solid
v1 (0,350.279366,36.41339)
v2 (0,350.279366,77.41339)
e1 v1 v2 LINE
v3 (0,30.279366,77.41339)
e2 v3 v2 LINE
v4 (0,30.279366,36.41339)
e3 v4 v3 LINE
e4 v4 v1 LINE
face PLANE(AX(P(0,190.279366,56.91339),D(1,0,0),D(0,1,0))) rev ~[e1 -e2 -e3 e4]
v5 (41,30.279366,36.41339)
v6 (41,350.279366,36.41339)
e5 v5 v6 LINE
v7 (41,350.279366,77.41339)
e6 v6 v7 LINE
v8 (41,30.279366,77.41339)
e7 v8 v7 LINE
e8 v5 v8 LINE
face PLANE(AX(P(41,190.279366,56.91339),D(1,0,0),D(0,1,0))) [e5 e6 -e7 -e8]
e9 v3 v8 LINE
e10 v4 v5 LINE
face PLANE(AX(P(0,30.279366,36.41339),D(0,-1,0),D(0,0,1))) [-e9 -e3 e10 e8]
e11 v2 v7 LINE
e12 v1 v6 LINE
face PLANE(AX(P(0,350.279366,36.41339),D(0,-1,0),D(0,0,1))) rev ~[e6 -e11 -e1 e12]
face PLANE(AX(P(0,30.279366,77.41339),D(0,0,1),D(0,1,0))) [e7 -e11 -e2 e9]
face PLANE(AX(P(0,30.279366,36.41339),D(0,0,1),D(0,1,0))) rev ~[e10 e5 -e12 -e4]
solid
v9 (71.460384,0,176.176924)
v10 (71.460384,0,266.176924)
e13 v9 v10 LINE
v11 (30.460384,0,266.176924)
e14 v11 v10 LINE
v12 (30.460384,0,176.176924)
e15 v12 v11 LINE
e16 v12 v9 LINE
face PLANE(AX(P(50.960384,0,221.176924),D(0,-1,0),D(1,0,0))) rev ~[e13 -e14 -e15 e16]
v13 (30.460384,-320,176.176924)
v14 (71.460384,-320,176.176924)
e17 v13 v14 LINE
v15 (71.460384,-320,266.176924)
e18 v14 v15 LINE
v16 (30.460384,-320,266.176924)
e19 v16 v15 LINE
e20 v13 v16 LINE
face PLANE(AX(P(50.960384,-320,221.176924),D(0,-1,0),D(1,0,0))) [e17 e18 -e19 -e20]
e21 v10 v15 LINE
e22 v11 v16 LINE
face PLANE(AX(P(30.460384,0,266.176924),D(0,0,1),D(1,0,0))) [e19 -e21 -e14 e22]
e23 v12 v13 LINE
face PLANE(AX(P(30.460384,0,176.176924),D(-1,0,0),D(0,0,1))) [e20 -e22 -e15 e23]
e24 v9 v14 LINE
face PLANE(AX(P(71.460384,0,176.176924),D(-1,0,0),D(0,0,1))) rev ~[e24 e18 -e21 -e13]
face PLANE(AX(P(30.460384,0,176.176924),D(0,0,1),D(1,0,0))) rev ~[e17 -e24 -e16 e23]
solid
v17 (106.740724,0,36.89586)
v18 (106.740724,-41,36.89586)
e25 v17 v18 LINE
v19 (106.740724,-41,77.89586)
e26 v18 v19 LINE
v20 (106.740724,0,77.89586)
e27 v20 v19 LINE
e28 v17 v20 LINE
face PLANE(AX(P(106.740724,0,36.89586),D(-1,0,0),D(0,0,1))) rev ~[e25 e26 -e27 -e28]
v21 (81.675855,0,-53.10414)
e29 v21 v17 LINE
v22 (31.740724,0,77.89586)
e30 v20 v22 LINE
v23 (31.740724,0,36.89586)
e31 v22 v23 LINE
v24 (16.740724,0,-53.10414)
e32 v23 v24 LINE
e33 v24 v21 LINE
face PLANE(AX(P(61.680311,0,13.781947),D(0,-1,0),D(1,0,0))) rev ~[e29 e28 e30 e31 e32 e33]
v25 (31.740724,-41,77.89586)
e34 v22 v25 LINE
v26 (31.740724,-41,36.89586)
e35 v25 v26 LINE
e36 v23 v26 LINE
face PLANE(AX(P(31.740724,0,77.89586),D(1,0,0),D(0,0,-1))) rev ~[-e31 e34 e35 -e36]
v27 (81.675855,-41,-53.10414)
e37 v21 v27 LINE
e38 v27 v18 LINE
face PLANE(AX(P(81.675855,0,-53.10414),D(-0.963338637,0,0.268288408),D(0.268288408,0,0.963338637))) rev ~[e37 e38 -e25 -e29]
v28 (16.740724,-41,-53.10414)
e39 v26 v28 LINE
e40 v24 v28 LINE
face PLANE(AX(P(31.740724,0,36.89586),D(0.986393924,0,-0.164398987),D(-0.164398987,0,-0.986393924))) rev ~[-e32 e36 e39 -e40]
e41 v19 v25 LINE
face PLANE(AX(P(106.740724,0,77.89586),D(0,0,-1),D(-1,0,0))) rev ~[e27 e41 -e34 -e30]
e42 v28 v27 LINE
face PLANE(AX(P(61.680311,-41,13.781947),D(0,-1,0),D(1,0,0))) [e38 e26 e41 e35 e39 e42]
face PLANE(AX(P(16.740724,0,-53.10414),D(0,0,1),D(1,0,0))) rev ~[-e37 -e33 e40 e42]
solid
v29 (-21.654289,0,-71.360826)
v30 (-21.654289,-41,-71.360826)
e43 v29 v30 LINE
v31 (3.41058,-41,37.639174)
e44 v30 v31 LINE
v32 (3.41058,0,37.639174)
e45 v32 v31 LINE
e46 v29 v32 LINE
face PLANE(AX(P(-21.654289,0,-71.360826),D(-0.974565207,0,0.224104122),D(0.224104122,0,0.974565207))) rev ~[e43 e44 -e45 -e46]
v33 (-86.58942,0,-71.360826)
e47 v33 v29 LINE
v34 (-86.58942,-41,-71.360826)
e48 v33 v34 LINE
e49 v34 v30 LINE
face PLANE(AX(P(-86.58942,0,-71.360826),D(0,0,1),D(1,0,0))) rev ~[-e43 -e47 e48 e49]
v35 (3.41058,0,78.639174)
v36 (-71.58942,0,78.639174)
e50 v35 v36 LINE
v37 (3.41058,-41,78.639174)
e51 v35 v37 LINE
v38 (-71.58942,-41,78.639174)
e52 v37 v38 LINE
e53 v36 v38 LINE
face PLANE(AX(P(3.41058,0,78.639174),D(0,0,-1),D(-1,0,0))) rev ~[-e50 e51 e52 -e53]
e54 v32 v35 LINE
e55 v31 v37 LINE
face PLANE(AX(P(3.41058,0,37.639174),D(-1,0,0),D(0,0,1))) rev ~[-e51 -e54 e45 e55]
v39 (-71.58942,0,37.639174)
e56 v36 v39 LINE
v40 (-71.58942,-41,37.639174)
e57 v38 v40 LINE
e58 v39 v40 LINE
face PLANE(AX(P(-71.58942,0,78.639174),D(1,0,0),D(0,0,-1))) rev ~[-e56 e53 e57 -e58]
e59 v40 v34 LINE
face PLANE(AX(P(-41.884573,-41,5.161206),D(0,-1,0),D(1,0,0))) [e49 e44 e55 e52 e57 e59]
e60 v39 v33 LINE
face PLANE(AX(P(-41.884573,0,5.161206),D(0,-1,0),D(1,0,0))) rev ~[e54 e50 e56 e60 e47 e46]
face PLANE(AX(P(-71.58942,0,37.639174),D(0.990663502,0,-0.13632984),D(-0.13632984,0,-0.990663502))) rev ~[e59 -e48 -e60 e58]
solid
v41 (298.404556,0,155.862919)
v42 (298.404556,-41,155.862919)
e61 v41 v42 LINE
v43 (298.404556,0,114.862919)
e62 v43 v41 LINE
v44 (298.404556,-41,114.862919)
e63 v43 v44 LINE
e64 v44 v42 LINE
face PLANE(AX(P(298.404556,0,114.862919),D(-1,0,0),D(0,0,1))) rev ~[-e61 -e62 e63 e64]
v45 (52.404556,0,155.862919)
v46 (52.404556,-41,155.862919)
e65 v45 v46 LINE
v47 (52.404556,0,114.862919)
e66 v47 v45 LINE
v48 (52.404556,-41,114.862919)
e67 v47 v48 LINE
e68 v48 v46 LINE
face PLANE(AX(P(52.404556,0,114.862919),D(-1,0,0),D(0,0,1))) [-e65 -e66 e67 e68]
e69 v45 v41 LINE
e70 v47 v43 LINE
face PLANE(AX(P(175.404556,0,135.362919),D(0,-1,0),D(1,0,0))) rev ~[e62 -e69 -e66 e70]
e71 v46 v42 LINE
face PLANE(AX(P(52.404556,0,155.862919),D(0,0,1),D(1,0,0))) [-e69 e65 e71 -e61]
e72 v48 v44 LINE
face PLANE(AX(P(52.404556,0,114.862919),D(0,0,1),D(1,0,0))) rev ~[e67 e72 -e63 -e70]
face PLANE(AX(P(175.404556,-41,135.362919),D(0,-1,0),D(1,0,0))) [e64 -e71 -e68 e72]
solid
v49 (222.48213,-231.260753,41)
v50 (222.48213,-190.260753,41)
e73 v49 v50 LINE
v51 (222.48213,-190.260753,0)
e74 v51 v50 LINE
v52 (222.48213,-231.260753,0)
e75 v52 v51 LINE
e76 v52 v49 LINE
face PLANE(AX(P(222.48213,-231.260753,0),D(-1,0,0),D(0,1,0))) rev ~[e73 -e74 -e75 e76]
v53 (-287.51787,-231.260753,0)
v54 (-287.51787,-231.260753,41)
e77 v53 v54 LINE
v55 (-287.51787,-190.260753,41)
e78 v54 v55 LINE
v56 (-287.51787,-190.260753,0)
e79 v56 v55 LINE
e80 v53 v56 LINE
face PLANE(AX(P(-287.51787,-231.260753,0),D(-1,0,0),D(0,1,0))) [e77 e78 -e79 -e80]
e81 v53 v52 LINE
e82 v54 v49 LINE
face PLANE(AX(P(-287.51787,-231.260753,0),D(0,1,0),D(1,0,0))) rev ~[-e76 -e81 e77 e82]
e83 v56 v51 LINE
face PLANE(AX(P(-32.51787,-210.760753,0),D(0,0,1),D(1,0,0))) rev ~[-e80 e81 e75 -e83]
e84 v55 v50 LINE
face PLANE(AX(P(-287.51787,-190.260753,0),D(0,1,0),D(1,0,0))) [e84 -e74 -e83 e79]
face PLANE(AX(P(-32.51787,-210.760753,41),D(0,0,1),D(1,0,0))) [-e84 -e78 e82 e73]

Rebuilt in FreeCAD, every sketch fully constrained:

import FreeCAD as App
import Part
import Sketcher

V = App.Vector


def add_polygon(sketch, points):
    """Adds a closed chain of lines whose ends are joined by coincident constraints."""
    first, n = sketch.GeometryCount, len(points)
    for a, b in zip(points, points[1:] + points[:1]):
        sketch.addGeometry(Part.LineSegment(App.Vector(*a, 0), App.Vector(*b, 0)), False)
    for i in range(n):
        sketch.addConstraint(Sketcher.Constraint("Coincident", first + i, 2, first + (i + 1) % n, 1))

doc = App.newDocument("Part")
body = doc.addObject("PartDesign::Body", "Body")

# Sketch on XZ plane
sketch1 = doc.addObject("Sketcher::SketchObject", "Sketch")
body.addObject(sketch1)
sketch1.AttachmentSupport = (doc.XZ_Plane, [""])
sketch1.MapMode = "FlatFace"
add_polygon(sketch1, [(3.41058, 78.639174), (-71.58942, 78.639174), (-71.58942, 37.639174), (-86.58942, -71.360826), (-21.654289, -71.360826), (3.41058, 37.639174)])  # lines 0-5
sketch1.addConstraint(Sketcher.Constraint("Horizontal", 0))
sketch1.addConstraint(Sketcher.Constraint("Vertical", 1))
sketch1.addConstraint(Sketcher.Constraint("Horizontal", 3))
sketch1.addConstraint(Sketcher.Constraint("Vertical", 5))
sketch1.addConstraint(Sketcher.Constraint("Horizontal", 1, 2, 4, 2))
sketch1.addConstraint(Sketcher.Constraint("DistanceX", 0, 2, 0, 1, 75.0))
sketch1.addConstraint(Sketcher.Constraint("DistanceY", 1, 2, 1, 1, 41.0))
sketch1.addConstraint(Sketcher.Constraint("DistanceX", 2, 2, 1, 2, 15.0))
sketch1.addConstraint(Sketcher.Constraint("DistanceY", 2, 2, 1, 2, 109.0))
sketch1.addConstraint(Sketcher.Constraint("DistanceX", 3, 1, 3, 2, 64.935131))
sketch1.addConstraint(Sketcher.Constraint("DistanceX", 0, 2, -1, 1, 71.58942))
sketch1.addConstraint(Sketcher.Constraint("DistanceY", -1, 1, 0, 2, 78.639174))
pad1 = doc.addObject("PartDesign::Pad", "Pad")
body.addObject(pad1)
pad1.Profile = sketch1
pad1.Length = 41
body2 = doc.addObject("PartDesign::Body", "Body001")

# Sketch on XZ plane
sketch2 = doc.addObject("Sketcher::SketchObject", "Sketch001")
body2.addObject(sketch2)
sketch2.AttachmentSupport = (doc.getObject("XZ_Plane001"), [""])
sketch2.MapMode = "FlatFace"
add_polygon(sketch2, [(52.404556, 155.862919), (52.404556, 114.862919), (298.404556, 114.862919), (298.404556, 155.862919)])  # lines 0-3
sketch2.addConstraint(Sketcher.Constraint("Vertical", 0))
sketch2.addConstraint(Sketcher.Constraint("Horizontal", 1))
sketch2.addConstraint(Sketcher.Constraint("Vertical", 2))
sketch2.addConstraint(Sketcher.Constraint("Horizontal", 3))
sketch2.addConstraint(Sketcher.Constraint("DistanceX", 1, 1, 1, 2, 246.0))
sketch2.addConstraint(Sketcher.Constraint("DistanceY", 0, 2, 0, 1, 41.0))
sketch2.addConstraint(Sketcher.Constraint("DistanceY", -1, 1, 0, 2, 114.862919))
sketch2.addConstraint(Sketcher.Constraint("DistanceX", -1, 1, 0, 2, 52.404556))
pad2 = doc.addObject("PartDesign::Pad", "Pad001")
body2.addObject(pad2)
pad2.Profile = sketch2
pad2.Length = 41
body3 = doc.addObject("PartDesign::Body", "Body002")

# Sketch on YZ plane
sketch3 = doc.addObject("Sketcher::SketchObject", "Sketch002")
body3.addObject(sketch3)
sketch3.AttachmentSupport = (doc.getObject("YZ_Plane002"), [""])
sketch3.MapMode = "FlatFace"
add_polygon(sketch3, [(30.279366, 77.41339), (30.279366, 36.41339), (350.279366, 36.41339), (350.279366, 77.41339)])  # lines 0-3
sketch3.addConstraint(Sketcher.Constraint("Vertical", 0))
sketch3.addConstraint(Sketcher.Constraint("Horizontal", 1))
sketch3.addConstraint(Sketcher.Constraint("Vertical", 2))
sketch3.addConstraint(Sketcher.Constraint("Horizontal", 3))
sketch3.addConstraint(Sketcher.Constraint("DistanceX", 1, 1, 1, 2, 320.0))
sketch3.addConstraint(Sketcher.Constraint("DistanceY", 0, 2, 0, 1, 41.0))
sketch3.addConstraint(Sketcher.Constraint("DistanceY", -1, 1, 0, 2, 36.41339))
sketch3.addConstraint(Sketcher.Constraint("DistanceX", -1, 1, 0, 2, 30.279366))
pad3 = doc.addObject("PartDesign::Pad", "Pad002")
body3.addObject(pad3)
pad3.Profile = sketch3
pad3.Length = 41
body4 = doc.addObject("PartDesign::Body", "Body003")

# Sketch on XY plane
sketch4 = doc.addObject("Sketcher::SketchObject", "Sketch003")
body4.addObject(sketch4)
sketch4.AttachmentSupport = (doc.getObject("XY_Plane003"), [""])
sketch4.MapMode = "FlatFace"
add_polygon(sketch4, [(-287.51787, -190.260753), (-287.51787, -231.260753), (222.48213, -231.260753), (222.48213, -190.260753)])  # lines 0-3
sketch4.addConstraint(Sketcher.Constraint("Vertical", 0))
sketch4.addConstraint(Sketcher.Constraint("Horizontal", 1))
sketch4.addConstraint(Sketcher.Constraint("Vertical", 2))
sketch4.addConstraint(Sketcher.Constraint("Horizontal", 3))
sketch4.addConstraint(Sketcher.Constraint("DistanceX", 1, 1, 1, 2, 510.0))
sketch4.addConstraint(Sketcher.Constraint("DistanceY", 0, 2, 0, 1, 41.0))
sketch4.addConstraint(Sketcher.Constraint("DistanceX", 0, 2, -1, 1, 287.51787))
sketch4.addConstraint(Sketcher.Constraint("DistanceY", 0, 2, -1, 1, 231.260753))
pad4 = doc.addObject("PartDesign::Pad", "Pad003")
body4.addObject(pad4)
pad4.Profile = sketch4
pad4.Length = 41
body5 = doc.addObject("PartDesign::Body", "Body004")

# Sketch on XZ plane
sketch5 = doc.addObject("Sketcher::SketchObject", "Sketch004")
body5.addObject(sketch5)
sketch5.AttachmentSupport = (doc.getObject("XZ_Plane004"), [""])
sketch5.MapMode = "FlatFace"
add_polygon(sketch5, [(30.460384, 266.176924), (30.460384, 176.176924), (71.460384, 176.176924), (71.460384, 266.176924)])  # lines 0-3
sketch5.addConstraint(Sketcher.Constraint("Vertical", 0))
sketch5.addConstraint(Sketcher.Constraint("Horizontal", 1))
sketch5.addConstraint(Sketcher.Constraint("Vertical", 2))
sketch5.addConstraint(Sketcher.Constraint("Horizontal", 3))
sketch5.addConstraint(Sketcher.Constraint("DistanceX", 1, 1, 1, 2, 41.0))
sketch5.addConstraint(Sketcher.Constraint("DistanceY", 0, 2, 0, 1, 90.0))
sketch5.addConstraint(Sketcher.Constraint("DistanceX", -1, 1, 0, 2, 30.460384))
sketch5.addConstraint(Sketcher.Constraint("DistanceY", -1, 1, 0, 2, 176.176924))
pad5 = doc.addObject("PartDesign::Pad", "Pad004")
body5.addObject(pad5)
pad5.Profile = sketch5
pad5.Length = 320
body6 = doc.addObject("PartDesign::Body", "Body005")

# Sketch on XZ plane
sketch6 = doc.addObject("Sketcher::SketchObject", "Sketch005")
body6.addObject(sketch6)
sketch6.AttachmentSupport = (doc.getObject("XZ_Plane005"), [""])
sketch6.MapMode = "FlatFace"
add_polygon(sketch6, [(106.740724, 77.89586), (31.740724, 77.89586), (31.740724, 36.89586), (16.740724, -53.10414), (81.675855, -53.10414), (106.740724, 36.89586)])  # lines 0-5
sketch6.addConstraint(Sketcher.Constraint("Horizontal", 0))
sketch6.addConstraint(Sketcher.Constraint("Vertical", 1))
sketch6.addConstraint(Sketcher.Constraint("Horizontal", 3))
sketch6.addConstraint(Sketcher.Constraint("Vertical", 5))
sketch6.addConstraint(Sketcher.Constraint("Horizontal", 1, 2, 4, 2))
sketch6.addConstraint(Sketcher.Constraint("DistanceX", 0, 2, 0, 1, 75.0))
sketch6.addConstraint(Sketcher.Constraint("DistanceY", 1, 2, 1, 1, 41.0))
sketch6.addConstraint(Sketcher.Constraint("DistanceX", 2, 2, 1, 2, 15.0))
sketch6.addConstraint(Sketcher.Constraint("DistanceY", 2, 2, 1, 2, 90.0))
sketch6.addConstraint(Sketcher.Constraint("DistanceX", 3, 1, 3, 2, 64.935131))
sketch6.addConstraint(Sketcher.Constraint("DistanceY", -1, 1, 0, 2, 77.89586))
sketch6.addConstraint(Sketcher.Constraint("DistanceX", -1, 1, 0, 2, 31.740724))
pad6 = doc.addObject("PartDesign::Pad", "Pad005")
body6.addObject(pad6)
pad6.Profile = sketch6
pad6.Length = 41

doc.recompute()
